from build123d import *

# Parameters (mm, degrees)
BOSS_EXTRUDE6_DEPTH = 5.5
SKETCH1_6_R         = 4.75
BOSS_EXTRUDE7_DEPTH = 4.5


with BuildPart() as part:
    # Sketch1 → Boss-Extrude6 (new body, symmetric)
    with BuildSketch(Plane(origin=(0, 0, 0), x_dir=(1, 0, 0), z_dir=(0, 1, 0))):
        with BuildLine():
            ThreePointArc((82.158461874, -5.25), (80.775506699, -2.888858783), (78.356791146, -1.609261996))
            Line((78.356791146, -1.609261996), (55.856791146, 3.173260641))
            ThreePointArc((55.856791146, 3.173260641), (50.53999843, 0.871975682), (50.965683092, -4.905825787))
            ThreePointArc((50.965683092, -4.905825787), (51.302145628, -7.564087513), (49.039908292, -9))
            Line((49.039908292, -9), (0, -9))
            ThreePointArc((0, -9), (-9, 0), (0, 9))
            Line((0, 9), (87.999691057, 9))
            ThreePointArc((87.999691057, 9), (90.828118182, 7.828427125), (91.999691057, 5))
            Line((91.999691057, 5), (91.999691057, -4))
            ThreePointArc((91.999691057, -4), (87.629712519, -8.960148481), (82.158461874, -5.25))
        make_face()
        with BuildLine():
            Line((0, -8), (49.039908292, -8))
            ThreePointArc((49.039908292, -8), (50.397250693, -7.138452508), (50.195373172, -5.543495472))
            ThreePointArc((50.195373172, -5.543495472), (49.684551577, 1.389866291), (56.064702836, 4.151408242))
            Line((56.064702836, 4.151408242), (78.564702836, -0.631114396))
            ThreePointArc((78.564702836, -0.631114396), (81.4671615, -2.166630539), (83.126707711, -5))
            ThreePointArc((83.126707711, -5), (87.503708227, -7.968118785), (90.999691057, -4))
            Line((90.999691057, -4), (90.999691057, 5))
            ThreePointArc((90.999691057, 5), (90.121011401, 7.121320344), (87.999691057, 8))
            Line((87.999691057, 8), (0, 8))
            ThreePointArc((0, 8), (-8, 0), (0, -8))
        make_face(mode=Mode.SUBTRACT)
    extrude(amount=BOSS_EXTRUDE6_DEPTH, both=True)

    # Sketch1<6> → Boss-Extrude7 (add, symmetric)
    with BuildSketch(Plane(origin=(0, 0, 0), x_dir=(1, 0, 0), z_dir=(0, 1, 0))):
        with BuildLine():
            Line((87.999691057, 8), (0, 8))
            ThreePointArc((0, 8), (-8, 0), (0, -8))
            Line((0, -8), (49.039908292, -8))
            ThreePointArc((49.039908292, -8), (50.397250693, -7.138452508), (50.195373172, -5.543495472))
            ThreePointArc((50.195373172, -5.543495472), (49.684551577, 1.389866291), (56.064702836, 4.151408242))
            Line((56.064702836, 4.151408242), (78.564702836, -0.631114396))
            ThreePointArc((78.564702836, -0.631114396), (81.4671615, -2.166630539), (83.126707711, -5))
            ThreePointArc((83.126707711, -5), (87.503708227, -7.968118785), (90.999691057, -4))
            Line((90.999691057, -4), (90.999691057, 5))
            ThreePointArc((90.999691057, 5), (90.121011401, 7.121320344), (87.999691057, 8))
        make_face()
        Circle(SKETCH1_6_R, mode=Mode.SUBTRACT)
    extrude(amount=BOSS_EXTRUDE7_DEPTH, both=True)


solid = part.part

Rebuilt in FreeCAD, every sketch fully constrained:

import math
import FreeCAD as App
import Part
import Sketcher
Q = App.Units.Quantity

doc = App.newDocument("Part")
params = doc.addObject("Spreadsheet::Sheet", "Params")
for row, (alias, value) in enumerate([
    ("sketch1_radius", "5 mm"),
    ("sketch1_radius2", "4 mm"),
    ("sketch1_radius3", "9 mm"),
    ("sketch1_radius4", "2.5 mm"),
    ("sketch1_height", "9 mm"),
    ("pad1_length", "11 mm"),
    ("sketch2_radius", "8 mm"),
    ("sketch2_radius2", "6 mm"),
    ("sketch2_radius3", "4 mm"),
    ("sketch2_radius4", "3 mm"),
    ("sketch2_diameter", "9.5 mm"),
    ("pad2_length", "9 mm"),
], start=1):
    params.set(f"A{row}", alias)
    params.set(f"B{row}", "=" + value)
    params.setAlias(f"B{row}", alias)

body = doc.addObject("PartDesign::Body", "Body")

# Sketch on XZ plane
sketch1 = doc.addObject("Sketcher::SketchObject", "Sketch")
body.addObject(sketch1)
sketch1.AttachmentSupport = (doc.XZ_Plane, [""])
sketch1.MapMode = "FlatFace"
sketch1.addGeometry([
    Part.ArcOfCircle(Part.Circle(App.Vector(77.3, 6.5, 0), App.Vector(0, 0, 1), 5), math.radians(-78), math.radians(-14)),  # 0
    Part.ArcOfCircle(Part.Circle(App.Vector(87, 4, 0), App.Vector(0, 0, 1), 5), math.radians(0), math.radians(166)),  # 1
    Part.LineSegment(App.Vector(92, 4, 0), App.Vector(92, -5, 0)),  # 2
    Part.ArcOfCircle(Part.Circle(App.Vector(88, -5, 0), App.Vector(0, 0, 1), 4), math.radians(-90), math.radians(0)),  # 3
    Part.LineSegment(App.Vector(88, -9, 0), App.Vector(0, -9, 0)),  # 4
    Part.ArcOfCircle(Part.Circle(App.Vector(0, 0, 0), App.Vector(0, 0, 1), 9), math.radians(90), math.radians(270)),  # 5
    Part.LineSegment(App.Vector(0, 9, 0), App.Vector(49, 9, 0)),  # 6
    Part.ArcOfCircle(Part.Circle(App.Vector(49, 6.5, 0), App.Vector(0, 0, 1), 2.5), math.radians(-40), math.radians(90)),  # 7
    Part.ArcOfCircle(Part.Circle(App.Vector(54.8, 1.7, 0), App.Vector(0, 0, 1), 5), math.radians(140), math.radians(282)),  # 8
    Part.LineSegment(App.Vector(55.9, -3.2, 0), App.Vector(78.4, 1.6, 0)),  # 9
    Part.ArcOfCircle(Part.Circle(App.Vector(0, 0, 0), App.Vector(0, 0, 1), 8), math.radians(90), math.radians(270)),  # 10
    Part.LineSegment(App.Vector(0, -8, 0), App.Vector(88, -8, 0)),  # 11
    Part.ArcOfCircle(Part.Circle(App.Vector(88, -5, 0), App.Vector(0, 0, 1), 3), math.radians(-90), math.radians(0)),  # 12
    Part.LineSegment(App.Vector(91, -5, 0), App.Vector(91, 4, 0)),  # 13
    Part.ArcOfCircle(Part.Circle(App.Vector(87, 4, 0), App.Vector(0, 0, 1), 4), math.radians(0), math.radians(166)),  # 14
    Part.ArcOfCircle(Part.Circle(App.Vector(77.3, 6.5, 0), App.Vector(0, 0, 1), 6), math.radians(-78), math.radians(-14)),  # 15
    Part.LineSegment(App.Vector(78.6, 0.6, 0), App.Vector(56.1, -4.2, 0)),  # 16
    Part.ArcOfCircle(Part.Circle(App.Vector(54.8, 1.7, 0), App.Vector(0, 0, 1), 6), math.radians(140), math.radians(282)),  # 17
    Part.ArcOfCircle(Part.Circle(App.Vector(49, 6.5, 0), App.Vector(0, 0, 1), 1.5), math.radians(-40), math.radians(90)),  # 18
    Part.LineSegment(App.Vector(49, 8, 0), App.Vector(0, 8, 0)),  # 19
], False)
sketch1.addConstraint([
    Sketcher.Constraint("Tangent", 0, 2, 1, 2),
    Sketcher.Constraint("Tangent", 1, 1, 2, 1),
    Sketcher.Constraint("Tangent", 2, 2, 3, 2),
    Sketcher.Constraint("Tangent", 3, 1, 4, 1),
    Sketcher.Constraint("Tangent", 4, 2, 5, 2),
    Sketcher.Constraint("Tangent", 5, 1, 6, 1),
    Sketcher.Constraint("Tangent", 6, 2, 7, 2),
    Sketcher.Constraint("Tangent", 7, 1, 8, 1),
    Sketcher.Constraint("Tangent", 8, 2, 9, 1),
    Sketcher.Constraint("Tangent", 9, 2, 0, 1),
    Sketcher.Constraint("Tangent", 10, 2, 11, 1),
    Sketcher.Constraint("Tangent", 11, 2, 12, 1),
    Sketcher.Constraint("Tangent", 12, 2, 13, 1),
    Sketcher.Constraint("Tangent", 13, 2, 14, 1),
    Sketcher.Constraint("Tangent", 14, 2, 15, 2),
    Sketcher.Constraint("Tangent", 15, 1, 16, 1),
    Sketcher.Constraint("Tangent", 16, 2, 17, 2),
    Sketcher.Constraint("Tangent", 17, 1, 18, 1),
    Sketcher.Constraint("Tangent", 18, 2, 19, 1),
    Sketcher.Constraint("Tangent", 19, 2, 10, 1),
    Sketcher.Constraint("Vertical", 2),
    Sketcher.Constraint("Horizontal", 4),
    Sketcher.Constraint("Horizontal", 6),
    Sketcher.Constraint("Horizontal", 11),
    Sketcher.Constraint("Vertical", 13),
    Sketcher.Constraint("Horizontal", 19),
    Sketcher.Constraint("Coincident", 5, 3, -1, 1),
    Sketcher.Constraint("Coincident", 10, 3, -1, 1),
    Sketcher.Constraint("Coincident", 12, 3, 3, 3),
    Sketcher.Constraint("Coincident", 14, 3, 1, 3),
    Sketcher.Constraint("Coincident", 15, 3, 0, 3),
    Sketcher.Constraint("Coincident", 17, 3, 8, 3),
    Sketcher.Constraint("Coincident", 18, 3, 7, 3),
    Sketcher.Constraint("Equal", 0, 1),
    Sketcher.Constraint("Equal", 1, 8),
    Sketcher.Constraint("Equal", 3, 14),
    Sketcher.Constraint("Horizontal", 0, 3, 7, 3),
    Sketcher.Constraint("Radius", 0, 5.0),
    Sketcher.Constraint("Radius", 3, 4.0),
    Sketcher.Constraint("Radius", 5, 9.0),
    Sketcher.Constraint("Radius", 7, 2.5),
    Sketcher.Constraint("DistanceY", 2, 2, 2, 1, 9.0),
    Sketcher.Constraint("Angle", 9, Q("12 deg")),
    Sketcher.Constraint("DistanceX", 8, 3, 0, 3, 22.5),
    Sketcher.Constraint("DistanceX", 4, 2, 4, 1, 87.999691),
])
sketch1.setExpression("Constraints[37]", "Params.sketch1_radius")
sketch1.setExpression("Constraints[38]", "Params.sketch1_radius2")
sketch1.setExpression("Constraints[39]", "Params.sketch1_radius3")
sketch1.setExpression("Constraints[40]", "Params.sketch1_radius4")
sketch1.setExpression("Constraints[41]", "Params.sketch1_height")
pad1 = doc.addObject("PartDesign::Pad", "Pad")
body.addObject(pad1)
pad1.Profile = sketch1
pad1.setExpression("Length", "Params.pad1_length")
pad1.Midplane = True

# Sketch on XZ plane
sketch2 = doc.addObject("Sketcher::SketchObject", "Sketch001")
body.addObject(sketch2)
sketch2.AttachmentSupport = (doc.XZ_Plane, [""])
sketch2.MapMode = "FlatFace"
sketch2.addGeometry([
    Part.LineSegment(App.Vector(88, -8, 0), App.Vector(0, -8, 0)),  # 0
    Part.ArcOfCircle(Part.Circle(App.Vector(0, 0, 0), App.Vector(0, 0, 1), 8), math.radians(90), math.radians(270)),  # 1
    Part.LineSegment(App.Vector(0, 8, 0), App.Vector(49, 8, 0)),  # 2
    Part.ArcOfCircle(Part.Circle(App.Vector(49, 6.5, 0), App.Vector(0, 0, 1), 1.5), math.radians(-40), math.radians(90)),  # 3
    Part.ArcOfCircle(Part.Circle(App.Vector(54.8, 1.7, 0), App.Vector(0, 0, 1), 6), math.radians(140), math.radians(282)),  # 4
    Part.LineSegment(App.Vector(56.1, -4.2, 0), App.Vector(78.6, 0.6, 0)),  # 5
    Part.ArcOfCircle(Part.Circle(App.Vector(77.3, 6.5, 0), App.Vector(0, 0, 1), 6), math.radians(-78), math.radians(-14)),  # 6
    Part.ArcOfCircle(Part.Circle(App.Vector(87, 4, 0), App.Vector(0, 0, 1), 4), math.radians(0), math.radians(166)),  # 7
    Part.LineSegment(App.Vector(91, 4, 0), App.Vector(91, -5, 0)),  # 8
    Part.ArcOfCircle(Part.Circle(App.Vector(88, -5, 0), App.Vector(0, 0, 1), 3), math.radians(-90), math.radians(0)),  # 9
    Part.Circle(App.Vector(0, 0, 0), App.Vector(0, 0, 1), 4.8),  # 10
], False)
sketch2.addConstraint([
    Sketcher.Constraint("Tangent", 0, 2, 1, 2),
    Sketcher.Constraint("Tangent", 1, 1, 2, 1),
    Sketcher.Constraint("Tangent", 2, 2, 3, 2),
    Sketcher.Constraint("Tangent", 3, 1, 4, 1),
    Sketcher.Constraint("Tangent", 4, 2, 5, 1),
    Sketcher.Constraint("Tangent", 5, 2, 6, 1),
    Sketcher.Constraint("Tangent", 6, 2, 7, 2),
    Sketcher.Constraint("Tangent", 7, 1, 8, 1),
    Sketcher.Constraint("Tangent", 8, 2, 9, 2),
    Sketcher.Constraint("Tangent", 9, 1, 0, 1),
    Sketcher.Constraint("Horizontal", 0),
    Sketcher.Constraint("Horizontal", 2),
    Sketcher.Constraint("Vertical", 8),
    Sketcher.Constraint("Coincident", 1, 3, -1, 1),
    Sketcher.Constraint("Coincident", 10, 3, -1, 1),
    Sketcher.Constraint("Equal", 4, 6),
    Sketcher.Constraint("Horizontal", 3, 3, 6, 3),
    Sketcher.Constraint("Radius", 1, 8.0),
    Sketcher.Constraint("Radius", 4, 6.0),
    Sketcher.Constraint("Radius", 7, 4.0),
    Sketcher.Constraint("Radius", 9, 3.0),
    Sketcher.Constraint("Diameter", 10, 9.5),
    Sketcher.Constraint("Radius", 3, 1.5),
    Sketcher.Constraint("DistanceY", 8, 2, 8, 1, 9.0),
    Sketcher.Constraint("Angle", 5, Q("12 deg")),
    Sketcher.Constraint("DistanceX", 4, 3, 6, 3, 22.5),
    Sketcher.Constraint("DistanceX", 0, 2, 0, 1, 87.999691),
])
sketch2.setExpression("Constraints[17]", "Params.sketch2_radius")
sketch2.setExpression("Constraints[18]", "Params.sketch2_radius2")
sketch2.setExpression("Constraints[19]", "Params.sketch2_radius3")
sketch2.setExpression("Constraints[20]", "Params.sketch2_radius4")
sketch2.setExpression("Constraints[21]", "Params.sketch2_diameter")
pad2 = doc.addObject("PartDesign::Pad", "Pad001")
body.addObject(pad2)
pad2.Profile = sketch2
pad2.setExpression("Length", "Params.pad2_length")
pad2.Midplane = True

doc.recompute()
